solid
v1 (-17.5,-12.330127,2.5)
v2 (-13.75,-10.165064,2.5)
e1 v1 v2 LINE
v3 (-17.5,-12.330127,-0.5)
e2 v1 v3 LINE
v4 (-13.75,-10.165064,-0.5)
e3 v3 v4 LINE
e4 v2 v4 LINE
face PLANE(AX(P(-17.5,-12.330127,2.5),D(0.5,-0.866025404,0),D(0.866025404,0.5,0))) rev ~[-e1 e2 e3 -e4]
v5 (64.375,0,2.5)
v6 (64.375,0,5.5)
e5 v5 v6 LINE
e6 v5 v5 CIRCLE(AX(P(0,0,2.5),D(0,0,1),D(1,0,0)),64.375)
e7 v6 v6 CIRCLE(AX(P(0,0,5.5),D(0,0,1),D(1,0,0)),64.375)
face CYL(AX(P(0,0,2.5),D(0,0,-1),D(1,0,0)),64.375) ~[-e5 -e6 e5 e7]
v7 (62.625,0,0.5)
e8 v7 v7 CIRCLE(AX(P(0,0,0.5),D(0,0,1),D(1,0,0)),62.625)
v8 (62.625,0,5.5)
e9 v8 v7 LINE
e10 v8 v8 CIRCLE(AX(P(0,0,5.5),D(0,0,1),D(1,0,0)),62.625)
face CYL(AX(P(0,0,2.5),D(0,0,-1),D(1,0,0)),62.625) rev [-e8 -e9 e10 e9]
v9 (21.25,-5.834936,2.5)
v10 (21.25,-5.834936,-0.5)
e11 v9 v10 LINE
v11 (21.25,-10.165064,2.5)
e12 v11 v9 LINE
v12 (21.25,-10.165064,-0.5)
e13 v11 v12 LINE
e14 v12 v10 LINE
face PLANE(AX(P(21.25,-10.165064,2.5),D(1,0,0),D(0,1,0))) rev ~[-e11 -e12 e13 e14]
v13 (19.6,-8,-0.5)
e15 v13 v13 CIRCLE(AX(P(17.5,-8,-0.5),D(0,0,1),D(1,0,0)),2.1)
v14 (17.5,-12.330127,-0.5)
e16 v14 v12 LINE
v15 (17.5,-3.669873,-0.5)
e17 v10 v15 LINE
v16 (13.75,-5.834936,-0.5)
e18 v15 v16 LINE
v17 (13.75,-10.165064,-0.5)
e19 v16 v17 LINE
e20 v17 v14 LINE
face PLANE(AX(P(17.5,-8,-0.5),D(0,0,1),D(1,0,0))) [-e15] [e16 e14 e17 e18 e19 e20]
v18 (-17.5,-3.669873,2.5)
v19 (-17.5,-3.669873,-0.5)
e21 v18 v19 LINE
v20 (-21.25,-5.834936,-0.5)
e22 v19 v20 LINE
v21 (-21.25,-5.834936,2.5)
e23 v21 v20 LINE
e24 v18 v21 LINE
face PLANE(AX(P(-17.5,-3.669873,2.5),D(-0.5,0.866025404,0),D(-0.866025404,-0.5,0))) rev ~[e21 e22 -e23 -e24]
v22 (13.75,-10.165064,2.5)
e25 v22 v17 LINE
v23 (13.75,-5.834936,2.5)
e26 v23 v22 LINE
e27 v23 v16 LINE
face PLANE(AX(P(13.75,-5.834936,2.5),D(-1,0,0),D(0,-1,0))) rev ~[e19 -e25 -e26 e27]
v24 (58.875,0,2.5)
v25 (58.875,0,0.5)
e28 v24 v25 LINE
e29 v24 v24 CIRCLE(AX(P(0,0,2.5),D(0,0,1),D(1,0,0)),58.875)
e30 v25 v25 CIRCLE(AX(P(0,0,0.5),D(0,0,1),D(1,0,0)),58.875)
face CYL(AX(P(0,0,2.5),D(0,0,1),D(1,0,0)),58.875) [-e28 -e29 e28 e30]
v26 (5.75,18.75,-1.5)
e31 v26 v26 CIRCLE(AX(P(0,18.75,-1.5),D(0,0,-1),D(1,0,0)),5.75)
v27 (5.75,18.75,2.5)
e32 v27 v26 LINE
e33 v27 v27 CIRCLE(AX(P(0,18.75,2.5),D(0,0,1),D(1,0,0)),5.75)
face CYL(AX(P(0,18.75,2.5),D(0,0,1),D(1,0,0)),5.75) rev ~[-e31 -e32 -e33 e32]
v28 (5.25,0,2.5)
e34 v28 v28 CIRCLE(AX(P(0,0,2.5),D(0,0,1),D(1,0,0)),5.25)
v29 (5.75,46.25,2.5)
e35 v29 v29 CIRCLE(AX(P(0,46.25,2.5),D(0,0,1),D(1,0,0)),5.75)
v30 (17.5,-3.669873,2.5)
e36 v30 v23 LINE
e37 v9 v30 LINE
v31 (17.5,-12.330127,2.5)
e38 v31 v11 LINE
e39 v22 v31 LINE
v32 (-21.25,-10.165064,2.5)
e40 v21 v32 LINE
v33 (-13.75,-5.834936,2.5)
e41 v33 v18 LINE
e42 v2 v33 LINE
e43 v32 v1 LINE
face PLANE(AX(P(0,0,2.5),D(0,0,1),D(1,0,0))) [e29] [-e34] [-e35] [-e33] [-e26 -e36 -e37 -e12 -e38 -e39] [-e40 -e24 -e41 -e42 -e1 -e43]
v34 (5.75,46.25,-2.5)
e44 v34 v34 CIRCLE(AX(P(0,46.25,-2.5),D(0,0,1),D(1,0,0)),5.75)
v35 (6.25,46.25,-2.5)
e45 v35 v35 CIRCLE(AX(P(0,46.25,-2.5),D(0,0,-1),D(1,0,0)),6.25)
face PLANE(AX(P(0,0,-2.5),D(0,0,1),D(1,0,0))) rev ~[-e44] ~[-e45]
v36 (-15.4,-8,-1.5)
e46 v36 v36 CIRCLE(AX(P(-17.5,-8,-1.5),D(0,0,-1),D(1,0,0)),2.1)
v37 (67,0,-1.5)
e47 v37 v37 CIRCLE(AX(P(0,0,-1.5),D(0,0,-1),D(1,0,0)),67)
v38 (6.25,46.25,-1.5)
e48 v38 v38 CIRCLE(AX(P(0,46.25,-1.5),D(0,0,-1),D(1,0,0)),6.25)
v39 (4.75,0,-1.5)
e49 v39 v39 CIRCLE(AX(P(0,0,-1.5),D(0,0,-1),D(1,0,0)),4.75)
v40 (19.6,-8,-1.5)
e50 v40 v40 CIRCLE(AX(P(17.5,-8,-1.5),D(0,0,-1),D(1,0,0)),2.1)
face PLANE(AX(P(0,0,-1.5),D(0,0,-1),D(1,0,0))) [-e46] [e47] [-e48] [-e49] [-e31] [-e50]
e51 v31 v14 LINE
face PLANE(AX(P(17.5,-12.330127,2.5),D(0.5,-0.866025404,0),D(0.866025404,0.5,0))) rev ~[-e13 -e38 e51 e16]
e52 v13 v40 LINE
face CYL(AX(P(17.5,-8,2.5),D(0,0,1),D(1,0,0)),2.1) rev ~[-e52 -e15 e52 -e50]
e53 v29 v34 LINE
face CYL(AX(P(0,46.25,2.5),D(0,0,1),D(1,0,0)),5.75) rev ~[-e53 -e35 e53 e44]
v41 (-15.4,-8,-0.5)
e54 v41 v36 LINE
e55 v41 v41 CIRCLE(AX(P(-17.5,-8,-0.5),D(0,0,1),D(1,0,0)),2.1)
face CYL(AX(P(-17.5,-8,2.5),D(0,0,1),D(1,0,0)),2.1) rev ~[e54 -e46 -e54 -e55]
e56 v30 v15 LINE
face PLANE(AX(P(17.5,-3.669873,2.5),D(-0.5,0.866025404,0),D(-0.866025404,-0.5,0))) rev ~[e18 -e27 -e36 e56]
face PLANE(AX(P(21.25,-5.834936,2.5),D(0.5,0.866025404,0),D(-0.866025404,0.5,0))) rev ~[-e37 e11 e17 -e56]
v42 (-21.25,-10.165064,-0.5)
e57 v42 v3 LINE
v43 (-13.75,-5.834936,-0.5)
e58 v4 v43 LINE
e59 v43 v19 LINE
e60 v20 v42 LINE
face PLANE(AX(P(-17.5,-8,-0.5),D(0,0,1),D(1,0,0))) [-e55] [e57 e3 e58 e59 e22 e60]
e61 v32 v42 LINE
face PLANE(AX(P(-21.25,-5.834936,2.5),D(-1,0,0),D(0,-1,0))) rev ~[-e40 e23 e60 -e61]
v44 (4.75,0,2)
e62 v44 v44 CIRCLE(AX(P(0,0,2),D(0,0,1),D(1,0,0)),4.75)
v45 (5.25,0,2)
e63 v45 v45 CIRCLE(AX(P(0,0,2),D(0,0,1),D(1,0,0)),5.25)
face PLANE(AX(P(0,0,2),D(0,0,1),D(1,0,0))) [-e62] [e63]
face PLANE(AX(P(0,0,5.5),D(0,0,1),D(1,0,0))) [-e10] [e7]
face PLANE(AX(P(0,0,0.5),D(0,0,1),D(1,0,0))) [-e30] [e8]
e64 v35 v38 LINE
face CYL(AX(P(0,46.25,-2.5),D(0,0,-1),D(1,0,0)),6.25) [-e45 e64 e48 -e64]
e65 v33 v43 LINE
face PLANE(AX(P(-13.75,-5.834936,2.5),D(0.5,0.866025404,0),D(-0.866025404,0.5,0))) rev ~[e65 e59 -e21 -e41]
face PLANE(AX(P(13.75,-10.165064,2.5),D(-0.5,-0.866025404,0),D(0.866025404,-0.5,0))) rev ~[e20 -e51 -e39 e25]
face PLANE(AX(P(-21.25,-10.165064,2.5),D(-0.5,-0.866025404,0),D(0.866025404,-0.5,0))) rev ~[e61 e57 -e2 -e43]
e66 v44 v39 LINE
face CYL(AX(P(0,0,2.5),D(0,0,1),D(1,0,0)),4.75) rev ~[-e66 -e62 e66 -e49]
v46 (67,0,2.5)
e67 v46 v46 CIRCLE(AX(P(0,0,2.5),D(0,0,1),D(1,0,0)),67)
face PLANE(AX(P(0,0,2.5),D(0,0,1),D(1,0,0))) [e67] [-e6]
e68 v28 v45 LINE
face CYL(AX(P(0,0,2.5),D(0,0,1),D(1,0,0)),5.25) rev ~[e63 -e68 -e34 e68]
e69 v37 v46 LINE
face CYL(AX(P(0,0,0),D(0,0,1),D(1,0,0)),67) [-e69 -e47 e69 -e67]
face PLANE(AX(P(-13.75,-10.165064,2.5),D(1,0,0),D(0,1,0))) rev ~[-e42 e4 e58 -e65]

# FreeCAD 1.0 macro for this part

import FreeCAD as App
import Part
import Sketcher
Q = App.Units.Quantity


def add_polygon(sketch, points):
    """Adds a closed chain of lines whose ends are joined by coincident constraints."""
    first, n = sketch.GeometryCount, len(points)
    for a, b in zip(points, points[1:] + points[:1]):
        sketch.addGeometry(Part.LineSegment(App.Vector(*a, 0), App.Vector(*b, 0)), False)
    for i in range(n):
        sketch.addConstraint(Sketcher.Constraint("Coincident", first + i, 2, first + (i + 1) % n, 1))

doc = App.newDocument("Part")
body = doc.addObject("PartDesign::Body", "Body")

# Sketch on XY plane
sketch1 = body.newObject("Sketcher::SketchObject", "Sketch")
sketch1.AttachmentSupport = (doc.getObject("XY_Plane"), [""])
sketch1.MapMode = "FlatFace"
sketch1.addGeometry(Part.Circle(App.Vector(0, 0, 0), App.Vector(0, 0, 1), 67), False)
sketch1.addConstraint([
    Sketcher.Constraint("Coincident", 0, 3, -1, 1),
    Sketcher.Constraint("Diameter", 0, 134.0),
])
pad1 = body.newObject("PartDesign::Pad", "Pad")
pad1.Profile = sketch1
pad1.Length = 5
pad1.Midplane = True

# Sketch on XY plane
sketch2 = body.newObject("Sketcher::SketchObject", "Sketch001")
sketch2.AttachmentSupport = (doc.getObject("XY_Plane"), [""])
sketch2.MapMode = "FlatFace"
sketch2.AttachmentOffset = App.Placement(App.Vector(0, 0, 2.5), App.Rotation())
sketch2.addGeometry([
    Part.Circle(App.Vector(0, 0, 0), App.Vector(0, 0, 1), 64),
    Part.Circle(App.Vector(0, 0, 0), App.Vector(0, 0, 1), 63),
], False)
sketch2.addConstraint([
    Sketcher.Constraint("Coincident", 0, 3, -1, 1),
    Sketcher.Constraint("Coincident", 1, 3, -1, 1),
    Sketcher.Constraint("Diameter", 0, 128.75),
    Sketcher.Constraint("Diameter", 1, 125.25),
])
pad2 = body.newObject("PartDesign::Pad", "Pad001")
pad2.Profile = sketch2
pad2.Length = 3

# Sketch on XY plane
sketch3 = body.newObject("Sketcher::SketchObject", "Sketch002")
sketch3.AttachmentSupport = (doc.getObject("XY_Plane"), [""])
sketch3.MapMode = "FlatFace"
sketch3.AttachmentOffset = App.Placement(App.Vector(0, 0, 2.5), App.Rotation())
sketch3.addGeometry([
    Part.Circle(App.Vector(0, 0, 0), App.Vector(0, 0, 1), 63),
    Part.Circle(App.Vector(0, 0, 0), App.Vector(0, 0, 1), 59),
], False)
sketch3.addConstraint([
    Sketcher.Constraint("Coincident", 0, 3, -1, 1),
    Sketcher.Constraint("Coincident", 1, 3, -1, 1),
    Sketcher.Constraint("Diameter", 0, 125.25),
    Sketcher.Constraint("Diameter", 1, 117.75),
])
pocket1 = body.newObject("PartDesign::Pocket", "Pocket")
pocket1.Profile = sketch3
pocket1.Length = 2

# Sketch on XY plane
sketch4 = body.newObject("Sketcher::SketchObject", "Sketch003")
sketch4.AttachmentSupport = (doc.getObject("XY_Plane"), [""])
sketch4.MapMode = "FlatFace"
sketch4.AttachmentOffset = App.Placement(App.Vector(0, 0, 2.5), App.Rotation())
sketch4.addGeometry([
    Part.Circle(App.Vector(0, 0, 0), App.Vector(0, 0, 1), 4.8),  # 0
    Part.Circle(App.Vector(0, 18.8, 0), App.Vector(0, 0, 1), 5.8),  # 1
    Part.Circle(App.Vector(0, 46.2, 0), App.Vector(0, 0, 1), 5.8),  # 2
    Part.Circle(App.Vector(17.5, -8, 0), App.Vector(0, 0, 1), 2.1),  # 3
    Part.Circle(App.Vector(-17.5, -8, 0), App.Vector(0, 0, 1), 2.1),  # 4
], False)
sketch4.addConstraint([
    Sketcher.Constraint("Coincident", 0, 3, -1, 1),
    Sketcher.Constraint("Equal", 1, 2),
    Sketcher.Constraint("Equal", 3, 4),
    Sketcher.Constraint("Symmetric", 3, 3, 4, 3, -2),
    Sketcher.Constraint("PointOnObject", 1, 3, -2),
    Sketcher.Constraint("PointOnObject", 2, 3, -2),
    Sketcher.Constraint("Diameter", 0, 9.5),
    Sketcher.Constraint("Diameter", 1, 11.5),
    Sketcher.Constraint("Diameter", 3, 4.2),
    Sketcher.Constraint("DistanceY", 3, 3, -1, 1, 8.0),
    Sketcher.Constraint("DistanceX", 4, 3, 3, 3, 35.0),
    Sketcher.Constraint("DistanceY", 1, 3, 2, 3, 27.5),
    Sketcher.Constraint("DistanceY", -1, 1, 1, 3, 18.75),
])
pocket2 = body.newObject("PartDesign::Pocket", "Pocket001")
pocket2.Profile = sketch4
pocket2.Type = "ThroughAll"

# Sketch on XY plane
sketch5 = body.newObject("Sketcher::SketchObject", "Sketch004")
sketch5.AttachmentSupport = (doc.getObject("XY_Plane"), [""])
sketch5.MapMode = "FlatFace"
sketch5.AttachmentOffset = App.Placement(App.Vector(0, 0, 2.5), App.Rotation())
sketch5.addGeometry([
    Part.Circle(App.Vector(0, 0, 0), App.Vector(0, 0, 1), 5.2),
    Part.Circle(App.Vector(0, 0, 0), App.Vector(0, 0, 1), 4.8),
], False)
sketch5.addConstraint([
    Sketcher.Constraint("Coincident", 0, 3, -1, 1),
    Sketcher.Constraint("Coincident", 1, 3, -1, 1),
    Sketcher.Constraint("Diameter", 0, 10.5),
    Sketcher.Constraint("Diameter", 1, 9.5),
])
pocket3 = body.newObject("PartDesign::Pocket", "Pocket002")
pocket3.Profile = sketch5
pocket3.Length = 0.5

# Sketch on XY plane
sketch6 = body.newObject("Sketcher::SketchObject", "Sketch005")
sketch6.AttachmentSupport = (doc.getObject("XY_Plane"), [""])
sketch6.MapMode = "FlatFace"
sketch6.AttachmentOffset = App.Placement(App.Vector(0, 0, 2.5), App.Rotation())
add_polygon(sketch6, [(-13.8, -10.2), (-13.8, -5.8), (-17.5, -3.7), (-21.2, -5.8), (-21.2, -10.2), (-17.5, -12.3)])  # lines 0-5
sketch6.addConstraint([
    Sketcher.Constraint("Vertical", 0),
    Sketcher.Constraint("Vertical", 3),
    Sketcher.Constraint("Parallel", 1, 4),
    Sketcher.Constraint("Parallel", 2, 5),
    Sketcher.Constraint("Horizontal", 0, 2, 2, 2),
    Sketcher.Constraint("Horizontal", 3, 2, 5, 2),
    Sketcher.Constraint("Vertical", 1, 2, 4, 2),
    Sketcher.Constraint("Angle", 1, Q("150 deg")),
    Sketcher.Constraint("DistanceX", 1, 2, -1, 1, 17.5),
    Sketcher.Constraint("DistanceX", 2, 2, 0, 2, 7.5),
    Sketcher.Constraint("DistanceY", 0, 1, 0, 2, 4.330127),
    Sketcher.Constraint("DistanceY", 0, 2, -1, 1, 5.834936),
])
pocket4 = body.newObject("PartDesign::Pocket", "Pocket003")
pocket4.Profile = sketch6
pocket4.Length = 3

# Sketch on XY plane
sketch7 = body.newObject("Sketcher::SketchObject", "Sketch006")
sketch7.AttachmentSupport = (doc.getObject("XY_Plane"), [""])
sketch7.MapMode = "FlatFace"
sketch7.AttachmentOffset = App.Placement(App.Vector(0, 0, 2.5), App.Rotation())
add_polygon(sketch7, [(17.5, -12.3), (21.2, -10.2), (21.2, -5.8), (17.5, -3.7), (13.8, -5.8), (13.8, -10.2)])  # lines 0-5
sketch7.addConstraint([
    Sketcher.Constraint("Vertical", 1),
    Sketcher.Constraint("Vertical", 4),
    Sketcher.Constraint("Parallel", 0, 3),
    Sketcher.Constraint("Parallel", 2, 5),
    Sketcher.Constraint("Horizontal", 1, 2, 3, 2),
    Sketcher.Constraint("Horizontal", 0, 2, 4, 2),
    Sketcher.Constraint("Vertical", 2, 2, 5, 2),
    Sketcher.Constraint("Angle", 0, Q("30 deg")),
    Sketcher.Constraint("DistanceX", -1, 1, 2, 2, 17.5),
    Sketcher.Constraint("DistanceX", 3, 2, 1, 2, 7.5),
    Sketcher.Constraint("DistanceY", 1, 1, 1, 2, 4.330127),
    Sketcher.Constraint("DistanceY", 0, 2, -1, 1, 10.165064),
])
pocket5 = body.newObject("PartDesign::Pocket", "Pocket004")
pocket5.Profile = sketch7
pocket5.Length = 3

# Sketch on XY plane
sketch8 = body.newObject("Sketcher::SketchObject", "Sketch007")
sketch8.AttachmentSupport = (doc.getObject("XY_Plane"), [""])
sketch8.MapMode = "FlatFace"
sketch8.AttachmentOffset = App.Placement(App.Vector(0, 0, -2.5), App.Rotation())
sketch8.addGeometry([
    Part.Circle(App.Vector(0, 0, 0), App.Vector(0, 0, 1), 67),  # 0
    Part.Circle(App.Vector(0, 46.2, 0), App.Vector(0, 0, 1), 6.2),  # 1
    Part.Circle(App.Vector(0, 18.8, 0), App.Vector(0, 0, 1), 5.8),  # 2
    Part.Circle(App.Vector(-17.5, -8, 0), App.Vector(0, 0, 1), 2.1),  # 3
    Part.Circle(App.Vector(0, 0, 0), App.Vector(0, 0, 1), 4.8),  # 4
    Part.Circle(App.Vector(17.5, -8, 0), App.Vector(0, 0, 1), 2.1),  # 5
], False)
sketch8.addConstraint([
    Sketcher.Constraint("Coincident", 0, 3, -1, 1),
    Sketcher.Constraint("Coincident", 4, 3, -1, 1),
    Sketcher.Constraint("Equal", 3, 5),
    Sketcher.Constraint("Symmetric", 3, 3, 5, 3, -2),
    Sketcher.Constraint("PointOnObject", 1, 3, -2),
    Sketcher.Constraint("PointOnObject", 2, 3, -2),
    Sketcher.Constraint("Diameter", 0, 134.0),
    Sketcher.Constraint("Diameter", 1, 12.5),
    Sketcher.Constraint("Diameter", 2, 11.5),
    Sketcher.Constraint("Diameter", 3, 4.2),
    Sketcher.Constraint("Diameter", 4, 9.5),
    Sketcher.Constraint("DistanceY", 3, 3, -1, 1, 8.0),
    Sketcher.Constraint("DistanceX", 3, 3, 5, 3, 35.0),
    Sketcher.Constraint("DistanceY", 2, 3, 1, 3, 27.5),
    Sketcher.Constraint("DistanceY", -1, 1, 1, 3, 46.25),
])
pocket6 = body.newObject("PartDesign::Pocket", "Pocket005")
pocket6.Profile = sketch8
pocket6.Length = 1
pocket6.Reversed = True

doc.recompute()
